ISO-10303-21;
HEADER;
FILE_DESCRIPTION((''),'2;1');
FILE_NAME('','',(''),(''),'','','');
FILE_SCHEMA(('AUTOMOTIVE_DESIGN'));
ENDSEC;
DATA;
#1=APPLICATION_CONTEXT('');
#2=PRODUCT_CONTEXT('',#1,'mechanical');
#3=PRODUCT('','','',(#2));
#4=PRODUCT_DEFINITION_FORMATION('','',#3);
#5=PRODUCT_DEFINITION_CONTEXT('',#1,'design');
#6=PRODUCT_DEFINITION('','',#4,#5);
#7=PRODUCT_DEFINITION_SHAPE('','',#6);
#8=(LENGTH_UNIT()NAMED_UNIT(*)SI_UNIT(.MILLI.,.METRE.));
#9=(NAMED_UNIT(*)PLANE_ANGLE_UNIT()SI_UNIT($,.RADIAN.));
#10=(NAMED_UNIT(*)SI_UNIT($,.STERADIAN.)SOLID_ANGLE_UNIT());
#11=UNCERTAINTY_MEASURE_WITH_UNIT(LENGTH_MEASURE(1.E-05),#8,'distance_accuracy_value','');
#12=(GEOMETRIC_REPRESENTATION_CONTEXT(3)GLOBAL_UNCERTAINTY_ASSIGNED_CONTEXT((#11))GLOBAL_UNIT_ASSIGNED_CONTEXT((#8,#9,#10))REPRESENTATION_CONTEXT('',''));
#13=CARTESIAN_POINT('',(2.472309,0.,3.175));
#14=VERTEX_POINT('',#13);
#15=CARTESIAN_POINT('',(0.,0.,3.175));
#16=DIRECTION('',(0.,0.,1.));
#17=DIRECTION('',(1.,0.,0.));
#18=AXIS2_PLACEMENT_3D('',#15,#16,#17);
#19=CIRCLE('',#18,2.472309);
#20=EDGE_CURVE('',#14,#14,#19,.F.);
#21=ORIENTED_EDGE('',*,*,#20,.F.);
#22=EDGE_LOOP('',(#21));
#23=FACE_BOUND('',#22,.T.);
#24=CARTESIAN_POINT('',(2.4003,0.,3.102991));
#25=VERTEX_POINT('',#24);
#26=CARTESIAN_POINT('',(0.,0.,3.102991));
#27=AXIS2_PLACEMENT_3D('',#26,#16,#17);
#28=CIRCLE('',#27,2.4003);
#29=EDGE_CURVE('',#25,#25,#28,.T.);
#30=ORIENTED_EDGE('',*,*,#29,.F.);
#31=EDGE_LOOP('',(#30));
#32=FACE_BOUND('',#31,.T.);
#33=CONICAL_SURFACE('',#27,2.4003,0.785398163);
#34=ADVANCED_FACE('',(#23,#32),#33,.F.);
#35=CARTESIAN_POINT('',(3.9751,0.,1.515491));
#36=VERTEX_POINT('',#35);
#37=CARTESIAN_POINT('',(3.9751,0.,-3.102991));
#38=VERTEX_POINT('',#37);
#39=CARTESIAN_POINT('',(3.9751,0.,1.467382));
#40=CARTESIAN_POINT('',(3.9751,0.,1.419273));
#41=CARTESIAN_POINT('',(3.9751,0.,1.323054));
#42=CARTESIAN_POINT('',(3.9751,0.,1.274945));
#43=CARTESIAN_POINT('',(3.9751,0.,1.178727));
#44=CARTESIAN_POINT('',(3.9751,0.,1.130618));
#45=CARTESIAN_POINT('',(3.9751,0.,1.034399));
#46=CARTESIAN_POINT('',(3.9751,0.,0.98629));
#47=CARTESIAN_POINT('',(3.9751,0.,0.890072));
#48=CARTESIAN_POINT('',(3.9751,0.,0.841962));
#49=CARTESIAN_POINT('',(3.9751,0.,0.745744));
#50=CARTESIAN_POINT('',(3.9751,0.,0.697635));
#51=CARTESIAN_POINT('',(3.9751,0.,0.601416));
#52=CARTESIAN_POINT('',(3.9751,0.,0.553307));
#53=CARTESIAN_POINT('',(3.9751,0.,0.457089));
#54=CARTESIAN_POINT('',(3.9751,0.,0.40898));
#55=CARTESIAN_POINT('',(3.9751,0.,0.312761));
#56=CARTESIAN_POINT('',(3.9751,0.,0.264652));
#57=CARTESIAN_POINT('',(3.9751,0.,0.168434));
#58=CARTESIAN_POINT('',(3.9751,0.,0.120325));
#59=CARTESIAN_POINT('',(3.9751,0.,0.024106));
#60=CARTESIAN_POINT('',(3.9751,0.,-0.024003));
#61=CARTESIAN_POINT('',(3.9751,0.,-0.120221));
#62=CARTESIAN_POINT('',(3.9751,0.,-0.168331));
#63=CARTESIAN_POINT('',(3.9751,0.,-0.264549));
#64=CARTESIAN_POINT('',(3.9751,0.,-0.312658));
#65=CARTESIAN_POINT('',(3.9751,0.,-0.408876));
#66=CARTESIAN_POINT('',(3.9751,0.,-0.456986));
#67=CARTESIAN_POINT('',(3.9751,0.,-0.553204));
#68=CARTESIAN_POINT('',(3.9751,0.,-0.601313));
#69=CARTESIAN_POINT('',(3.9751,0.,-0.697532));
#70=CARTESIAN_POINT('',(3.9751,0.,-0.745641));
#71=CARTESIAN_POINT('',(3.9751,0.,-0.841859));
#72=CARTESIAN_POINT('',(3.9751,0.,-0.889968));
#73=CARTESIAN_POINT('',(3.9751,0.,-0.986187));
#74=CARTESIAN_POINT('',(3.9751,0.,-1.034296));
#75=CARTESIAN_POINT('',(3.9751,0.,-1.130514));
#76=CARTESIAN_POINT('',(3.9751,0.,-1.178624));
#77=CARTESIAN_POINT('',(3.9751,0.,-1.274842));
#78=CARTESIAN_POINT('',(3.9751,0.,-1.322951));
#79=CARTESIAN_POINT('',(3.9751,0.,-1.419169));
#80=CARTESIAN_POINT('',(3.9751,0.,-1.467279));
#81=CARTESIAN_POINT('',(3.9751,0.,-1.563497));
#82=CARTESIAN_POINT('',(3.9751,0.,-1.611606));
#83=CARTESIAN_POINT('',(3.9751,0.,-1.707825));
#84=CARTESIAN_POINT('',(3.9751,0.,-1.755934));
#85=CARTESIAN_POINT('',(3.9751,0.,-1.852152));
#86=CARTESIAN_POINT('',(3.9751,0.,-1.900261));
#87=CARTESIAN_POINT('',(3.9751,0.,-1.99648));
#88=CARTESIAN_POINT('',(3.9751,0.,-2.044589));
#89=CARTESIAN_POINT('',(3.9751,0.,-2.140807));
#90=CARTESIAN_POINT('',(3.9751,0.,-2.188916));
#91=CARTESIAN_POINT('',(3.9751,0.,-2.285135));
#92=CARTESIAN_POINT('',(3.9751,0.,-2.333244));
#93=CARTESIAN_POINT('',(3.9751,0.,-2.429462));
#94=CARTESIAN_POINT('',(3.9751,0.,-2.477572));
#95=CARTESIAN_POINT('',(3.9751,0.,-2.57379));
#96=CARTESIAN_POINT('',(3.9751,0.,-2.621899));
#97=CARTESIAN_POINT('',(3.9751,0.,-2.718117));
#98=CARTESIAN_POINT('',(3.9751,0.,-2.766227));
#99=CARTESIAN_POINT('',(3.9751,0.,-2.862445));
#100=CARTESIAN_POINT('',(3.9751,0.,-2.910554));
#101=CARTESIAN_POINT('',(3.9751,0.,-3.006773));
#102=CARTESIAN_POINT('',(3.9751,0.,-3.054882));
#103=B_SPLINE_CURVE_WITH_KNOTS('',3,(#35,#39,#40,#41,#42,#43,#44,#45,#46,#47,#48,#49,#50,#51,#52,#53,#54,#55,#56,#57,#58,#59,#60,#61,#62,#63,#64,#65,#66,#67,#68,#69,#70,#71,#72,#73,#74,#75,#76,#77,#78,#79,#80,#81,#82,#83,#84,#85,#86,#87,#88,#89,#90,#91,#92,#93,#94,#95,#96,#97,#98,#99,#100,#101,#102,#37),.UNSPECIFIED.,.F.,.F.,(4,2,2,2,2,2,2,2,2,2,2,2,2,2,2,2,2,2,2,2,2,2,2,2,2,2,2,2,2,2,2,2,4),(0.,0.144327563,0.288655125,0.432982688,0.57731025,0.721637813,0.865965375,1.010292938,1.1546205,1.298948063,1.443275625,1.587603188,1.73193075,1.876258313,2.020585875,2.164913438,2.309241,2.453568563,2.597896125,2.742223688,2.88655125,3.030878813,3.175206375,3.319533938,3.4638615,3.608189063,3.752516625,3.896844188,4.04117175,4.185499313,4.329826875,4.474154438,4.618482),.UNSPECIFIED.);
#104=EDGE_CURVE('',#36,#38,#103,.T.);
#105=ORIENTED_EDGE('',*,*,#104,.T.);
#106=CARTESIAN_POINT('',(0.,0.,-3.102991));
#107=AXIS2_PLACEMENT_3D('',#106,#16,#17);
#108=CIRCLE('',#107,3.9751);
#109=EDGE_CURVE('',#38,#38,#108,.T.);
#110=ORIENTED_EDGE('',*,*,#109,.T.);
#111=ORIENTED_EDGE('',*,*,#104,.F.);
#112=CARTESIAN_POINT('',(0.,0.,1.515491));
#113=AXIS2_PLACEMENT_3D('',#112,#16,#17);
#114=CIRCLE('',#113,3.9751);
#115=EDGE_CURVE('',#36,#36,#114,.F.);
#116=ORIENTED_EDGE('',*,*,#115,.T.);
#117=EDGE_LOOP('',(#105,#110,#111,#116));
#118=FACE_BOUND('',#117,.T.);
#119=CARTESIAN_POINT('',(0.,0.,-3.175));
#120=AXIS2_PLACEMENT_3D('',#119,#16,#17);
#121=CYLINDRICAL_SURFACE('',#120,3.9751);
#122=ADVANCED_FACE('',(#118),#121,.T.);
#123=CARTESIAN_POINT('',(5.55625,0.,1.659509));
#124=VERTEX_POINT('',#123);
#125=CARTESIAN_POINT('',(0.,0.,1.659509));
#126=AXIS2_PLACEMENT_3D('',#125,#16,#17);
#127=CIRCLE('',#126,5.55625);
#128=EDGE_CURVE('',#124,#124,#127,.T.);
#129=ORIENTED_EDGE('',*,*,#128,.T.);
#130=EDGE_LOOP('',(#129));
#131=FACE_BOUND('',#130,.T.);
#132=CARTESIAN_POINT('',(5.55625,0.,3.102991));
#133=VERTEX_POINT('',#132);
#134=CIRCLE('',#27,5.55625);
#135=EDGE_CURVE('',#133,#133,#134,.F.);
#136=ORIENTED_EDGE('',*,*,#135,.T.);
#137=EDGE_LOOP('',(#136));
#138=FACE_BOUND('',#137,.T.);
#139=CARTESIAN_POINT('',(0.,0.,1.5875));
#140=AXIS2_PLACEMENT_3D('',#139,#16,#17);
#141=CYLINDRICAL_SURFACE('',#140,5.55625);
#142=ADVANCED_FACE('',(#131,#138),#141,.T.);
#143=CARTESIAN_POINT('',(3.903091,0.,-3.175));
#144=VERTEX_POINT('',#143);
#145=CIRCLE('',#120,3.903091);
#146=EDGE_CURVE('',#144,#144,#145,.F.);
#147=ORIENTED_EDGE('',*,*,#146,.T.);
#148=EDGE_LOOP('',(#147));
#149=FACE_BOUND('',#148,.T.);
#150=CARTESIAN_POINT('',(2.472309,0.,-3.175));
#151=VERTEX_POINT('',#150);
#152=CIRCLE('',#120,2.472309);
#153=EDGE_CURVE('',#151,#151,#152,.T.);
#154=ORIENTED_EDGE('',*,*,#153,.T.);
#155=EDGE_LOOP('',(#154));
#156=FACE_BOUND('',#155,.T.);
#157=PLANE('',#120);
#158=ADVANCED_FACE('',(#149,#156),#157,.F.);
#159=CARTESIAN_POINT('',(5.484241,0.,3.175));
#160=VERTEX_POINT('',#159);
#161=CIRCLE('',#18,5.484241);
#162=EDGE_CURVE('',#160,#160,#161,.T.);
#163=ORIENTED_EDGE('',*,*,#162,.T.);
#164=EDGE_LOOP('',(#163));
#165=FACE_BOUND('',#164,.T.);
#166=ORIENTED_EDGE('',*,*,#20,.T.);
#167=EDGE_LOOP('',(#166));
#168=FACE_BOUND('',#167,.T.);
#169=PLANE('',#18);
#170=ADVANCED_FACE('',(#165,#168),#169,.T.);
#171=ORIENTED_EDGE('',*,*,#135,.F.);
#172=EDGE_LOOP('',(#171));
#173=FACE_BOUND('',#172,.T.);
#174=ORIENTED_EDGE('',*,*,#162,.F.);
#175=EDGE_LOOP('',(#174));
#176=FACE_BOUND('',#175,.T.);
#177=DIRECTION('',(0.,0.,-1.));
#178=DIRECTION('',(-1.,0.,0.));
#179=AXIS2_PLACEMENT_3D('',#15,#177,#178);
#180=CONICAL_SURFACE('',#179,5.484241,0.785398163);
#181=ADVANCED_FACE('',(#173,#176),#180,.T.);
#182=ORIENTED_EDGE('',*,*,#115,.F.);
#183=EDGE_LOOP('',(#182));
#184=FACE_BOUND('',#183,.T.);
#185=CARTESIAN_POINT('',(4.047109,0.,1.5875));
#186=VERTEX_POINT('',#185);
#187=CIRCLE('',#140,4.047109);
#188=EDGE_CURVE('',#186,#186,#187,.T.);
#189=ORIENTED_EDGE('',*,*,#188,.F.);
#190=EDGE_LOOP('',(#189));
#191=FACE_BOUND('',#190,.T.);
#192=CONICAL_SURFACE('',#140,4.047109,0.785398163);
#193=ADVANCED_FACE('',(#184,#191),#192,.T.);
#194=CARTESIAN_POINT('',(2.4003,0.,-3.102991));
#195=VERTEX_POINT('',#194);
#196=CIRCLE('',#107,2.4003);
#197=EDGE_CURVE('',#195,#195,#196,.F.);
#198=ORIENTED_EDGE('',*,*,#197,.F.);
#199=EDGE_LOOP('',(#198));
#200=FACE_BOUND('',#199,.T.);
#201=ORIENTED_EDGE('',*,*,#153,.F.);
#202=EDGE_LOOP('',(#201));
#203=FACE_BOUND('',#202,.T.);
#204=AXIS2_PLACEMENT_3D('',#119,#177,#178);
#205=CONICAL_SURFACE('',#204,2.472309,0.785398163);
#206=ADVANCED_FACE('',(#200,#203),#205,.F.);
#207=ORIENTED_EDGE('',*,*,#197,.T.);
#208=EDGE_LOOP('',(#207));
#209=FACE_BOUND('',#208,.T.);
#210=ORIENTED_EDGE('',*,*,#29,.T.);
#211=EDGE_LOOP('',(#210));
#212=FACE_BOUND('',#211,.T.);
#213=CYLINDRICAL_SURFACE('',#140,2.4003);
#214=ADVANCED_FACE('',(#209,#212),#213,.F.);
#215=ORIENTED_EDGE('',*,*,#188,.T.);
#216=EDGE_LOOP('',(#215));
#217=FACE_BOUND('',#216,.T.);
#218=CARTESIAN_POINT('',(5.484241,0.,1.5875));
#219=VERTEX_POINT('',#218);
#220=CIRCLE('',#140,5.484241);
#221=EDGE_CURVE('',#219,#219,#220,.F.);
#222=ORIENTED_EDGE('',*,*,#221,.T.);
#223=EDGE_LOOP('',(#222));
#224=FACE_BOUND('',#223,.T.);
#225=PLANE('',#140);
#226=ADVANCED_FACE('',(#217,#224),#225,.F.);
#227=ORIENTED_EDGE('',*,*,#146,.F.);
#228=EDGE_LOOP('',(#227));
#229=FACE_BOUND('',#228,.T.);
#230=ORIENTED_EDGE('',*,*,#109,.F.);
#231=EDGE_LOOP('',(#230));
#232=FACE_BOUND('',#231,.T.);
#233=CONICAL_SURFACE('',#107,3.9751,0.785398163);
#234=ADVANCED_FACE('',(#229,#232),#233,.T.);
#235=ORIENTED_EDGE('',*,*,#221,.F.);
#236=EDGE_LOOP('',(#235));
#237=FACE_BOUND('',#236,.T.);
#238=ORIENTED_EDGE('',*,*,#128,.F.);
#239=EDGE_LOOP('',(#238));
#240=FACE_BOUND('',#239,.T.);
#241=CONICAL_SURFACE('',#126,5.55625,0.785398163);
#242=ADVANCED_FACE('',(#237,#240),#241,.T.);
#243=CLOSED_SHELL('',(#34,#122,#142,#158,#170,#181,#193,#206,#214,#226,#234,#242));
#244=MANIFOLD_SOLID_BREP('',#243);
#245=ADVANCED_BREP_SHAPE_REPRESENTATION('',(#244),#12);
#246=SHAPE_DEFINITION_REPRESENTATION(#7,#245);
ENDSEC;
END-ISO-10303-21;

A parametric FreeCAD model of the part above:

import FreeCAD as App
import Part
import Sketcher
from FreeCAD import Vector
Q = App.Units.Quantity


def edges_at(feature, points):
    """Names of the edges that pass closest to the given points."""
    edges = feature.Shape.Edges
    near = lambda p: min(range(len(edges)), key=lambda i: edges[i].distToShape(Part.Vertex(*p))[0])
    return sorted({f"Edge{near(p) + 1}" for p in points})

doc = App.newDocument("Part")
body = doc.addObject("PartDesign::Body", "Body")

sketch1 = body.newObject("Sketcher::SketchObject", "Sketch")
sketch1.AttachmentSupport = (doc.getObject("XY_Plane"), [""])
sketch1.MapMode = "FlatFace"
sketch1.AttachmentOffset = App.Placement(Vector(0, 0, 0.125 * 25.4), App.Rotation())
sketch1.addGeometry([
    Part.Circle(Vector(0, 0, 0), Vector(0, 0, 1), 5.6),
    Part.Circle(Vector(0, 0, 0), Vector(0, 0, 1), 2.4),
], False)
sketch1.addConstraint([
    Sketcher.Constraint("Coincident", 0, 3, -1, 1),
    Sketcher.Constraint("Coincident", 1, 3, -1, 1),
    Sketcher.Constraint("Diameter", 0, Q("0.4375 in")),
    Sketcher.Constraint("Diameter", 1, Q("0.189 in")),
])
pad1 = body.newObject("PartDesign::Pad", "Pad")
pad1.Profile = sketch1
pad1.Length = Q("0.0625 in")
pad1.Reversed = True

sketch2 = body.newObject("Sketcher::SketchObject", "Sketch001")
sketch2.AttachmentSupport = (doc.getObject("XY_Plane"), [""])
sketch2.MapMode = "FlatFace"
sketch2.AttachmentOffset = App.Placement(Vector(0, 0, 0.0625 * 25.4), App.Rotation())
sketch2.addGeometry([
    Part.Circle(Vector(0, 0, 0), Vector(0, 0, 1), 4),
    Part.Circle(Vector(0, 0, 0), Vector(0, 0, 1), 2.4),
], False)
sketch2.addConstraint([
    Sketcher.Constraint("Coincident", 0, 3, -1, 1),
    Sketcher.Constraint("Coincident", 1, 3, -1, 1),
    Sketcher.Constraint("Diameter", 0, Q("0.313 in")),
    Sketcher.Constraint("Diameter", 1, Q("0.189 in")),
])
pad2 = body.newObject("PartDesign::Pad", "Pad001")
pad2.Profile = sketch2
pad2.Length = Q("0.1875 in")
pad2.Reversed = True
doc.recompute()

chamfer = body.newObject("PartDesign::Chamfer", "Chamfer")
chamfer.Base = (pad2, edges_at(pad2, [
    (-2.4, 0, -3.175),
    (-3.975, 0, 1.587),
    (-5.556, 0, 3.175),
    (-5.556, 0, 1.587),
    (-2.4, 0, 3.175),
    (-3.975, 0, -3.175),
]))
chamfer.Size = 0.072009

doc.recompute()
